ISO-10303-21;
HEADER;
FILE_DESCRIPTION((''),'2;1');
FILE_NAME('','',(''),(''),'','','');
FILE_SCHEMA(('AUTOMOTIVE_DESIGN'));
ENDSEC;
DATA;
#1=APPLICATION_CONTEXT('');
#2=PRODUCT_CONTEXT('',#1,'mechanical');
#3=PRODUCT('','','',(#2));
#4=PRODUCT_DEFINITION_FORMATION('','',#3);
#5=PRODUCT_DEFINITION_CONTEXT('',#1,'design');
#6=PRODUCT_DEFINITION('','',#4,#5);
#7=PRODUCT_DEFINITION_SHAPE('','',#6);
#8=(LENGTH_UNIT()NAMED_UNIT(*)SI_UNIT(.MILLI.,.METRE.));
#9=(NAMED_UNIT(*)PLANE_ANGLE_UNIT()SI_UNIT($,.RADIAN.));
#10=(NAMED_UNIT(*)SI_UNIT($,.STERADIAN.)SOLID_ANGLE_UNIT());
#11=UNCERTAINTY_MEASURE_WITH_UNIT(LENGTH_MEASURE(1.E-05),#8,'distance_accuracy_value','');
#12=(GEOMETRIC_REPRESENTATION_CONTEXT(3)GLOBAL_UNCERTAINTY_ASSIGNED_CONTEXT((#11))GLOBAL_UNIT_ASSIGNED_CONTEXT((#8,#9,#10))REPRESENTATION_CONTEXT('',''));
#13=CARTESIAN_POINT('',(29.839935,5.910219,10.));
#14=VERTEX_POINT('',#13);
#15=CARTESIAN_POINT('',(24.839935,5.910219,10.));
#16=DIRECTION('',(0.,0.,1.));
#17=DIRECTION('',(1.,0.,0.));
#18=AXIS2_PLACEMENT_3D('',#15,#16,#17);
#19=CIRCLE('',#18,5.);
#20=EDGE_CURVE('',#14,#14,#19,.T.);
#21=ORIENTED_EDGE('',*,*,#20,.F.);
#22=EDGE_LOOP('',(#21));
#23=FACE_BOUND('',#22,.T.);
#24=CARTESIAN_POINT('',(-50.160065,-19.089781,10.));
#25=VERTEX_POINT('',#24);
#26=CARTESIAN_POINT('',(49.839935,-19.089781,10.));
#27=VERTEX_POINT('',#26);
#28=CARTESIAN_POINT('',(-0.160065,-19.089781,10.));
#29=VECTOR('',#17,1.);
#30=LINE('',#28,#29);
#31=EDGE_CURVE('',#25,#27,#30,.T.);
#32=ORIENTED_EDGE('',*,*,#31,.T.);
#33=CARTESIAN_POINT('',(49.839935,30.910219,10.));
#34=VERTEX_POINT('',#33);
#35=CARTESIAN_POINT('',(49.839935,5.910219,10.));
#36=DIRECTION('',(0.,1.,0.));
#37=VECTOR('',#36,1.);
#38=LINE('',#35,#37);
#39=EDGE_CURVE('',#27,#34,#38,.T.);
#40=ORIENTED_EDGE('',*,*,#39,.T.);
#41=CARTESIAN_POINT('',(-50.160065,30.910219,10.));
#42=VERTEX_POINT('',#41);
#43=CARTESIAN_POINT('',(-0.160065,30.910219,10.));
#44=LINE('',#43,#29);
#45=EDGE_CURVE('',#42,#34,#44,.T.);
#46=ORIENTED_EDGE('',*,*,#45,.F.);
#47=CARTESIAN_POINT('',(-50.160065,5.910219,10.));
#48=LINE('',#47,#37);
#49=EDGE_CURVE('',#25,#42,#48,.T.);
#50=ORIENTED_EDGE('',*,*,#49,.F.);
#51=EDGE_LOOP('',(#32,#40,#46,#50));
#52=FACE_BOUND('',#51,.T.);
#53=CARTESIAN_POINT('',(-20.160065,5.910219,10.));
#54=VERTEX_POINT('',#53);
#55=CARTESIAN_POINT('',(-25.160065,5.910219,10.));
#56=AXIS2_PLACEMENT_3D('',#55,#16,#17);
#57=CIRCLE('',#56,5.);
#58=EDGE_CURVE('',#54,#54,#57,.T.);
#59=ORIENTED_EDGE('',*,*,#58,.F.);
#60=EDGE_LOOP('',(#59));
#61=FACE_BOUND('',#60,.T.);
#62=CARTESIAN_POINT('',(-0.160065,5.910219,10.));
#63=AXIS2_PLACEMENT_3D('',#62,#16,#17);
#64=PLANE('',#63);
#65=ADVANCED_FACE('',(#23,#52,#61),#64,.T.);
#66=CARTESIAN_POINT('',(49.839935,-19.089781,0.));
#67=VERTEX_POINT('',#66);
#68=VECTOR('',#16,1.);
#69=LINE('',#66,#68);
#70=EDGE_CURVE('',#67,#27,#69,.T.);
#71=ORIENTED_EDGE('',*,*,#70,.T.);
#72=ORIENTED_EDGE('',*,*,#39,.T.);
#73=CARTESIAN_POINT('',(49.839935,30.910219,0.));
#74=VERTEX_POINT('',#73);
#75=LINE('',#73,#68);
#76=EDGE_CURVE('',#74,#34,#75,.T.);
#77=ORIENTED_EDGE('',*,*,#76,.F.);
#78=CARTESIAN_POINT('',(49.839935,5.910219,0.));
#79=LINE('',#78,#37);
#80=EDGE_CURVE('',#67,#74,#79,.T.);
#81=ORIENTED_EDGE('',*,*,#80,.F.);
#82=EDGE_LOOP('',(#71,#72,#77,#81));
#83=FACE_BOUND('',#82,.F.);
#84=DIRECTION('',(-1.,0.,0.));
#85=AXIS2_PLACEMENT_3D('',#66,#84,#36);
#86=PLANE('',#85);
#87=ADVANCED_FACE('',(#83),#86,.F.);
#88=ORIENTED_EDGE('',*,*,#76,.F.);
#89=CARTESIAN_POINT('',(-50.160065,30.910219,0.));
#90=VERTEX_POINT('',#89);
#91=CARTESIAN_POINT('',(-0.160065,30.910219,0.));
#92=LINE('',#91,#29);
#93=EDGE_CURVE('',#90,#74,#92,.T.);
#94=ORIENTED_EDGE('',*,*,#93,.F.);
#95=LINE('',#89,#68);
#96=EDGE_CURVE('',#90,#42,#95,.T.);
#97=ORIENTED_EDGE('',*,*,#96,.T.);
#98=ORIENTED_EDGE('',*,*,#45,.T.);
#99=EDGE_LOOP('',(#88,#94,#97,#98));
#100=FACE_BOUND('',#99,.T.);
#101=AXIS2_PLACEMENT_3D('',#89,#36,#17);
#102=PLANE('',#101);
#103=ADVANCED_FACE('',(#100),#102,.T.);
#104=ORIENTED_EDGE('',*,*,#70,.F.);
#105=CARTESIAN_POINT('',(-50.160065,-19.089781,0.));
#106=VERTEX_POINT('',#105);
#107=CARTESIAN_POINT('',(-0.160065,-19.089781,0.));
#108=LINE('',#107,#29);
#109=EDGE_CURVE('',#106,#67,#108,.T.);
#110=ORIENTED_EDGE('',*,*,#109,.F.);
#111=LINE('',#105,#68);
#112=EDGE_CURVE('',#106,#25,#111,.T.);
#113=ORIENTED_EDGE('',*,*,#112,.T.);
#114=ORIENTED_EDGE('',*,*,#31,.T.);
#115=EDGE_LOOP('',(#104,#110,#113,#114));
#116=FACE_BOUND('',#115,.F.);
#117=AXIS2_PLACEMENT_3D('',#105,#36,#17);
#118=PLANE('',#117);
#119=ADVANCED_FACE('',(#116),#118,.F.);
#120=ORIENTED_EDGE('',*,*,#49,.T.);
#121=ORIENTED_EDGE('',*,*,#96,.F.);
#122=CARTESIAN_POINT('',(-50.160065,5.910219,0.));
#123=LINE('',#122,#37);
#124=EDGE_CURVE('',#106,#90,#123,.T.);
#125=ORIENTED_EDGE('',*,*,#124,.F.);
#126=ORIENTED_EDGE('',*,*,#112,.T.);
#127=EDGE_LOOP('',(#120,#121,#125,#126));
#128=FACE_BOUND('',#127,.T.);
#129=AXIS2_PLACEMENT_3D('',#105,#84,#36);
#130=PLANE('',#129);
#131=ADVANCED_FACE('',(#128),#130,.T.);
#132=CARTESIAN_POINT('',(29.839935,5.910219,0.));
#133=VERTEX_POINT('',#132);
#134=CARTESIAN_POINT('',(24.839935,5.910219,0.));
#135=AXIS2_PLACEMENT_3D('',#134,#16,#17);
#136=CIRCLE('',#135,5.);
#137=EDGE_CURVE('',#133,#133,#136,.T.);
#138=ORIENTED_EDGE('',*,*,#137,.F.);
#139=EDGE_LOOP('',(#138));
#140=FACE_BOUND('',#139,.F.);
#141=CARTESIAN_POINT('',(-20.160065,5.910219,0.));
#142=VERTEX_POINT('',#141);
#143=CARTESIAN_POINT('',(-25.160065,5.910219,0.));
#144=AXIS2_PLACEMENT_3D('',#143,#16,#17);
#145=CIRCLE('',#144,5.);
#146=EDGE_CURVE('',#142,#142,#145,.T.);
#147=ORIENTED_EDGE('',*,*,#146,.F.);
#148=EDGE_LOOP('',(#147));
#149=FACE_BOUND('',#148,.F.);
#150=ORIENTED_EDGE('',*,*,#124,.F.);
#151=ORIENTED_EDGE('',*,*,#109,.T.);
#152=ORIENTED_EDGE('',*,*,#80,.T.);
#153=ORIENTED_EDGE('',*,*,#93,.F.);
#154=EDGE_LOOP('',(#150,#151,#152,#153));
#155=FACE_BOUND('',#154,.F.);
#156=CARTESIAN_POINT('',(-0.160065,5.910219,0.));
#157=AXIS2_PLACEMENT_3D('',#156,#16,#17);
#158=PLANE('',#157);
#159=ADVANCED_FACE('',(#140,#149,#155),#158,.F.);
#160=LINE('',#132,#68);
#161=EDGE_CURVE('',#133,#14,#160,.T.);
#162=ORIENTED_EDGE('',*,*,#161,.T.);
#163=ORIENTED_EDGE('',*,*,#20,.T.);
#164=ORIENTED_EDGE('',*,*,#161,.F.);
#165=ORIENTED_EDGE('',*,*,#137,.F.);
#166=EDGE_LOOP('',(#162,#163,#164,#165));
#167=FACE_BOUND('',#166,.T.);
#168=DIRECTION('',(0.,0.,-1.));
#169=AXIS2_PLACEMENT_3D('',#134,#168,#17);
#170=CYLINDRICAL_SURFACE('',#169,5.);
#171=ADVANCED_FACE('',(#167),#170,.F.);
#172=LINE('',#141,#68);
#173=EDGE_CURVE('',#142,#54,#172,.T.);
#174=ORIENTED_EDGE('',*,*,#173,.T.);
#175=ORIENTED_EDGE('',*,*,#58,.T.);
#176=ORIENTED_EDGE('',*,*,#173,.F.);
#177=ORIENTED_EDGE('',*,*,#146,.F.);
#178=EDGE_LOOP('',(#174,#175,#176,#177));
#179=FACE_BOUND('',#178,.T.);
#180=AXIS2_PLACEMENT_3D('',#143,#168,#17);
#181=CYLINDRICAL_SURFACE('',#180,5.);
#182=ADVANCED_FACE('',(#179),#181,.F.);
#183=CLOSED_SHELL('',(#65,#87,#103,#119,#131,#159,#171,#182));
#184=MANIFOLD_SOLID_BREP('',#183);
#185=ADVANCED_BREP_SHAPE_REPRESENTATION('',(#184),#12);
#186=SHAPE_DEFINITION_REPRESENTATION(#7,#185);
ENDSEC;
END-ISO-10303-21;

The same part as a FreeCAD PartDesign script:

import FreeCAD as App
import Part
import Sketcher

V = App.Vector
Q = App.Units.Quantity


def add_polygon(sketch, points):
    """Adds a closed chain of lines whose ends are joined by coincident constraints."""
    first, n = sketch.GeometryCount, len(points)
    for a, b in zip(points, points[1:] + points[:1]):
        sketch.addGeometry(Part.LineSegment(App.Vector(*a, 0), App.Vector(*b, 0)), False)
    for i in range(n):
        sketch.addConstraint(Sketcher.Constraint("Coincident", first + i, 2, first + (i + 1) % n, 1))

doc = App.newDocument("Part")
params = doc.addObject("Spreadsheet::Sheet", "Params")
for row, (alias, value) in enumerate([
    ("sketch1_diameter", "10 mm"),
    ("sketch1_width", "100 mm"),
    ("sketch1_height", "50 mm"),
    ("pad1_length", "10 mm"),
], start=1):
    params.set(f"A{row}", alias)
    params.set(f"B{row}", "=" + value)
    params.setAlias(f"B{row}", alias)

body = doc.addObject("PartDesign::Body", "Body")

sketch1 = body.newObject("Sketcher::SketchObject", "Sketch")
sketch1.AttachmentSupport = (doc.getObject("XY_Plane"), [""])
sketch1.MapMode = "FlatFace"
add_polygon(sketch1, [(-50, 31), (-50, -19), (50, -19), (50, 31)])
sketch1.addGeometry(Part.Circle(V(-25, 6, 0), V(0, 0, 1), 5), False)
sketch1.addGeometry(Part.Circle(V(25, 6, 0), V(0, 0, 1), 5), False)
sketch1.addConstraint([
    Sketcher.Constraint("Vertical", 0),
    Sketcher.Constraint("Horizontal", 1),
    Sketcher.Constraint("Vertical", 2),
    Sketcher.Constraint("Horizontal", 3),
    Sketcher.Constraint("Equal", 4, 5),
    Sketcher.Constraint("Horizontal", 4, 3, 5, 3),
    Sketcher.Constraint("Diameter", 4, Q("10 mm")),
    Sketcher.Constraint("DistanceX", 1, 1, 1, 2, Q("100 mm")),
    Sketcher.Constraint("DistanceY", 0, 2, 0, 1, Q("50 mm")),
    Sketcher.Constraint("DistanceX", 4, 3, 5, 3, Q("50 mm")),
    Sketcher.Constraint("DistanceX", 0, 2, 4, 3, Q("25 mm")),
    Sketcher.Constraint("DistanceY", 0, 2, 4, 3, Q("25 mm")),
    Sketcher.Constraint("DistanceY", -1, 1, 4, 3, Q("5.910219 mm")),
    Sketcher.Constraint("DistanceX", 4, 3, -1, 1, Q("25.160065 mm")),
])
sketch1.setExpression("Constraints[10]", "Params.sketch1_diameter")
sketch1.setExpression("Constraints[11]", "Params.sketch1_width")
sketch1.setExpression("Constraints[12]", "Params.sketch1_height")
pad1 = body.newObject("PartDesign::Pad", "Pad")
pad1.Profile = sketch1
pad1.setExpression("Length", "Params.pad1_length")

doc.recompute()
